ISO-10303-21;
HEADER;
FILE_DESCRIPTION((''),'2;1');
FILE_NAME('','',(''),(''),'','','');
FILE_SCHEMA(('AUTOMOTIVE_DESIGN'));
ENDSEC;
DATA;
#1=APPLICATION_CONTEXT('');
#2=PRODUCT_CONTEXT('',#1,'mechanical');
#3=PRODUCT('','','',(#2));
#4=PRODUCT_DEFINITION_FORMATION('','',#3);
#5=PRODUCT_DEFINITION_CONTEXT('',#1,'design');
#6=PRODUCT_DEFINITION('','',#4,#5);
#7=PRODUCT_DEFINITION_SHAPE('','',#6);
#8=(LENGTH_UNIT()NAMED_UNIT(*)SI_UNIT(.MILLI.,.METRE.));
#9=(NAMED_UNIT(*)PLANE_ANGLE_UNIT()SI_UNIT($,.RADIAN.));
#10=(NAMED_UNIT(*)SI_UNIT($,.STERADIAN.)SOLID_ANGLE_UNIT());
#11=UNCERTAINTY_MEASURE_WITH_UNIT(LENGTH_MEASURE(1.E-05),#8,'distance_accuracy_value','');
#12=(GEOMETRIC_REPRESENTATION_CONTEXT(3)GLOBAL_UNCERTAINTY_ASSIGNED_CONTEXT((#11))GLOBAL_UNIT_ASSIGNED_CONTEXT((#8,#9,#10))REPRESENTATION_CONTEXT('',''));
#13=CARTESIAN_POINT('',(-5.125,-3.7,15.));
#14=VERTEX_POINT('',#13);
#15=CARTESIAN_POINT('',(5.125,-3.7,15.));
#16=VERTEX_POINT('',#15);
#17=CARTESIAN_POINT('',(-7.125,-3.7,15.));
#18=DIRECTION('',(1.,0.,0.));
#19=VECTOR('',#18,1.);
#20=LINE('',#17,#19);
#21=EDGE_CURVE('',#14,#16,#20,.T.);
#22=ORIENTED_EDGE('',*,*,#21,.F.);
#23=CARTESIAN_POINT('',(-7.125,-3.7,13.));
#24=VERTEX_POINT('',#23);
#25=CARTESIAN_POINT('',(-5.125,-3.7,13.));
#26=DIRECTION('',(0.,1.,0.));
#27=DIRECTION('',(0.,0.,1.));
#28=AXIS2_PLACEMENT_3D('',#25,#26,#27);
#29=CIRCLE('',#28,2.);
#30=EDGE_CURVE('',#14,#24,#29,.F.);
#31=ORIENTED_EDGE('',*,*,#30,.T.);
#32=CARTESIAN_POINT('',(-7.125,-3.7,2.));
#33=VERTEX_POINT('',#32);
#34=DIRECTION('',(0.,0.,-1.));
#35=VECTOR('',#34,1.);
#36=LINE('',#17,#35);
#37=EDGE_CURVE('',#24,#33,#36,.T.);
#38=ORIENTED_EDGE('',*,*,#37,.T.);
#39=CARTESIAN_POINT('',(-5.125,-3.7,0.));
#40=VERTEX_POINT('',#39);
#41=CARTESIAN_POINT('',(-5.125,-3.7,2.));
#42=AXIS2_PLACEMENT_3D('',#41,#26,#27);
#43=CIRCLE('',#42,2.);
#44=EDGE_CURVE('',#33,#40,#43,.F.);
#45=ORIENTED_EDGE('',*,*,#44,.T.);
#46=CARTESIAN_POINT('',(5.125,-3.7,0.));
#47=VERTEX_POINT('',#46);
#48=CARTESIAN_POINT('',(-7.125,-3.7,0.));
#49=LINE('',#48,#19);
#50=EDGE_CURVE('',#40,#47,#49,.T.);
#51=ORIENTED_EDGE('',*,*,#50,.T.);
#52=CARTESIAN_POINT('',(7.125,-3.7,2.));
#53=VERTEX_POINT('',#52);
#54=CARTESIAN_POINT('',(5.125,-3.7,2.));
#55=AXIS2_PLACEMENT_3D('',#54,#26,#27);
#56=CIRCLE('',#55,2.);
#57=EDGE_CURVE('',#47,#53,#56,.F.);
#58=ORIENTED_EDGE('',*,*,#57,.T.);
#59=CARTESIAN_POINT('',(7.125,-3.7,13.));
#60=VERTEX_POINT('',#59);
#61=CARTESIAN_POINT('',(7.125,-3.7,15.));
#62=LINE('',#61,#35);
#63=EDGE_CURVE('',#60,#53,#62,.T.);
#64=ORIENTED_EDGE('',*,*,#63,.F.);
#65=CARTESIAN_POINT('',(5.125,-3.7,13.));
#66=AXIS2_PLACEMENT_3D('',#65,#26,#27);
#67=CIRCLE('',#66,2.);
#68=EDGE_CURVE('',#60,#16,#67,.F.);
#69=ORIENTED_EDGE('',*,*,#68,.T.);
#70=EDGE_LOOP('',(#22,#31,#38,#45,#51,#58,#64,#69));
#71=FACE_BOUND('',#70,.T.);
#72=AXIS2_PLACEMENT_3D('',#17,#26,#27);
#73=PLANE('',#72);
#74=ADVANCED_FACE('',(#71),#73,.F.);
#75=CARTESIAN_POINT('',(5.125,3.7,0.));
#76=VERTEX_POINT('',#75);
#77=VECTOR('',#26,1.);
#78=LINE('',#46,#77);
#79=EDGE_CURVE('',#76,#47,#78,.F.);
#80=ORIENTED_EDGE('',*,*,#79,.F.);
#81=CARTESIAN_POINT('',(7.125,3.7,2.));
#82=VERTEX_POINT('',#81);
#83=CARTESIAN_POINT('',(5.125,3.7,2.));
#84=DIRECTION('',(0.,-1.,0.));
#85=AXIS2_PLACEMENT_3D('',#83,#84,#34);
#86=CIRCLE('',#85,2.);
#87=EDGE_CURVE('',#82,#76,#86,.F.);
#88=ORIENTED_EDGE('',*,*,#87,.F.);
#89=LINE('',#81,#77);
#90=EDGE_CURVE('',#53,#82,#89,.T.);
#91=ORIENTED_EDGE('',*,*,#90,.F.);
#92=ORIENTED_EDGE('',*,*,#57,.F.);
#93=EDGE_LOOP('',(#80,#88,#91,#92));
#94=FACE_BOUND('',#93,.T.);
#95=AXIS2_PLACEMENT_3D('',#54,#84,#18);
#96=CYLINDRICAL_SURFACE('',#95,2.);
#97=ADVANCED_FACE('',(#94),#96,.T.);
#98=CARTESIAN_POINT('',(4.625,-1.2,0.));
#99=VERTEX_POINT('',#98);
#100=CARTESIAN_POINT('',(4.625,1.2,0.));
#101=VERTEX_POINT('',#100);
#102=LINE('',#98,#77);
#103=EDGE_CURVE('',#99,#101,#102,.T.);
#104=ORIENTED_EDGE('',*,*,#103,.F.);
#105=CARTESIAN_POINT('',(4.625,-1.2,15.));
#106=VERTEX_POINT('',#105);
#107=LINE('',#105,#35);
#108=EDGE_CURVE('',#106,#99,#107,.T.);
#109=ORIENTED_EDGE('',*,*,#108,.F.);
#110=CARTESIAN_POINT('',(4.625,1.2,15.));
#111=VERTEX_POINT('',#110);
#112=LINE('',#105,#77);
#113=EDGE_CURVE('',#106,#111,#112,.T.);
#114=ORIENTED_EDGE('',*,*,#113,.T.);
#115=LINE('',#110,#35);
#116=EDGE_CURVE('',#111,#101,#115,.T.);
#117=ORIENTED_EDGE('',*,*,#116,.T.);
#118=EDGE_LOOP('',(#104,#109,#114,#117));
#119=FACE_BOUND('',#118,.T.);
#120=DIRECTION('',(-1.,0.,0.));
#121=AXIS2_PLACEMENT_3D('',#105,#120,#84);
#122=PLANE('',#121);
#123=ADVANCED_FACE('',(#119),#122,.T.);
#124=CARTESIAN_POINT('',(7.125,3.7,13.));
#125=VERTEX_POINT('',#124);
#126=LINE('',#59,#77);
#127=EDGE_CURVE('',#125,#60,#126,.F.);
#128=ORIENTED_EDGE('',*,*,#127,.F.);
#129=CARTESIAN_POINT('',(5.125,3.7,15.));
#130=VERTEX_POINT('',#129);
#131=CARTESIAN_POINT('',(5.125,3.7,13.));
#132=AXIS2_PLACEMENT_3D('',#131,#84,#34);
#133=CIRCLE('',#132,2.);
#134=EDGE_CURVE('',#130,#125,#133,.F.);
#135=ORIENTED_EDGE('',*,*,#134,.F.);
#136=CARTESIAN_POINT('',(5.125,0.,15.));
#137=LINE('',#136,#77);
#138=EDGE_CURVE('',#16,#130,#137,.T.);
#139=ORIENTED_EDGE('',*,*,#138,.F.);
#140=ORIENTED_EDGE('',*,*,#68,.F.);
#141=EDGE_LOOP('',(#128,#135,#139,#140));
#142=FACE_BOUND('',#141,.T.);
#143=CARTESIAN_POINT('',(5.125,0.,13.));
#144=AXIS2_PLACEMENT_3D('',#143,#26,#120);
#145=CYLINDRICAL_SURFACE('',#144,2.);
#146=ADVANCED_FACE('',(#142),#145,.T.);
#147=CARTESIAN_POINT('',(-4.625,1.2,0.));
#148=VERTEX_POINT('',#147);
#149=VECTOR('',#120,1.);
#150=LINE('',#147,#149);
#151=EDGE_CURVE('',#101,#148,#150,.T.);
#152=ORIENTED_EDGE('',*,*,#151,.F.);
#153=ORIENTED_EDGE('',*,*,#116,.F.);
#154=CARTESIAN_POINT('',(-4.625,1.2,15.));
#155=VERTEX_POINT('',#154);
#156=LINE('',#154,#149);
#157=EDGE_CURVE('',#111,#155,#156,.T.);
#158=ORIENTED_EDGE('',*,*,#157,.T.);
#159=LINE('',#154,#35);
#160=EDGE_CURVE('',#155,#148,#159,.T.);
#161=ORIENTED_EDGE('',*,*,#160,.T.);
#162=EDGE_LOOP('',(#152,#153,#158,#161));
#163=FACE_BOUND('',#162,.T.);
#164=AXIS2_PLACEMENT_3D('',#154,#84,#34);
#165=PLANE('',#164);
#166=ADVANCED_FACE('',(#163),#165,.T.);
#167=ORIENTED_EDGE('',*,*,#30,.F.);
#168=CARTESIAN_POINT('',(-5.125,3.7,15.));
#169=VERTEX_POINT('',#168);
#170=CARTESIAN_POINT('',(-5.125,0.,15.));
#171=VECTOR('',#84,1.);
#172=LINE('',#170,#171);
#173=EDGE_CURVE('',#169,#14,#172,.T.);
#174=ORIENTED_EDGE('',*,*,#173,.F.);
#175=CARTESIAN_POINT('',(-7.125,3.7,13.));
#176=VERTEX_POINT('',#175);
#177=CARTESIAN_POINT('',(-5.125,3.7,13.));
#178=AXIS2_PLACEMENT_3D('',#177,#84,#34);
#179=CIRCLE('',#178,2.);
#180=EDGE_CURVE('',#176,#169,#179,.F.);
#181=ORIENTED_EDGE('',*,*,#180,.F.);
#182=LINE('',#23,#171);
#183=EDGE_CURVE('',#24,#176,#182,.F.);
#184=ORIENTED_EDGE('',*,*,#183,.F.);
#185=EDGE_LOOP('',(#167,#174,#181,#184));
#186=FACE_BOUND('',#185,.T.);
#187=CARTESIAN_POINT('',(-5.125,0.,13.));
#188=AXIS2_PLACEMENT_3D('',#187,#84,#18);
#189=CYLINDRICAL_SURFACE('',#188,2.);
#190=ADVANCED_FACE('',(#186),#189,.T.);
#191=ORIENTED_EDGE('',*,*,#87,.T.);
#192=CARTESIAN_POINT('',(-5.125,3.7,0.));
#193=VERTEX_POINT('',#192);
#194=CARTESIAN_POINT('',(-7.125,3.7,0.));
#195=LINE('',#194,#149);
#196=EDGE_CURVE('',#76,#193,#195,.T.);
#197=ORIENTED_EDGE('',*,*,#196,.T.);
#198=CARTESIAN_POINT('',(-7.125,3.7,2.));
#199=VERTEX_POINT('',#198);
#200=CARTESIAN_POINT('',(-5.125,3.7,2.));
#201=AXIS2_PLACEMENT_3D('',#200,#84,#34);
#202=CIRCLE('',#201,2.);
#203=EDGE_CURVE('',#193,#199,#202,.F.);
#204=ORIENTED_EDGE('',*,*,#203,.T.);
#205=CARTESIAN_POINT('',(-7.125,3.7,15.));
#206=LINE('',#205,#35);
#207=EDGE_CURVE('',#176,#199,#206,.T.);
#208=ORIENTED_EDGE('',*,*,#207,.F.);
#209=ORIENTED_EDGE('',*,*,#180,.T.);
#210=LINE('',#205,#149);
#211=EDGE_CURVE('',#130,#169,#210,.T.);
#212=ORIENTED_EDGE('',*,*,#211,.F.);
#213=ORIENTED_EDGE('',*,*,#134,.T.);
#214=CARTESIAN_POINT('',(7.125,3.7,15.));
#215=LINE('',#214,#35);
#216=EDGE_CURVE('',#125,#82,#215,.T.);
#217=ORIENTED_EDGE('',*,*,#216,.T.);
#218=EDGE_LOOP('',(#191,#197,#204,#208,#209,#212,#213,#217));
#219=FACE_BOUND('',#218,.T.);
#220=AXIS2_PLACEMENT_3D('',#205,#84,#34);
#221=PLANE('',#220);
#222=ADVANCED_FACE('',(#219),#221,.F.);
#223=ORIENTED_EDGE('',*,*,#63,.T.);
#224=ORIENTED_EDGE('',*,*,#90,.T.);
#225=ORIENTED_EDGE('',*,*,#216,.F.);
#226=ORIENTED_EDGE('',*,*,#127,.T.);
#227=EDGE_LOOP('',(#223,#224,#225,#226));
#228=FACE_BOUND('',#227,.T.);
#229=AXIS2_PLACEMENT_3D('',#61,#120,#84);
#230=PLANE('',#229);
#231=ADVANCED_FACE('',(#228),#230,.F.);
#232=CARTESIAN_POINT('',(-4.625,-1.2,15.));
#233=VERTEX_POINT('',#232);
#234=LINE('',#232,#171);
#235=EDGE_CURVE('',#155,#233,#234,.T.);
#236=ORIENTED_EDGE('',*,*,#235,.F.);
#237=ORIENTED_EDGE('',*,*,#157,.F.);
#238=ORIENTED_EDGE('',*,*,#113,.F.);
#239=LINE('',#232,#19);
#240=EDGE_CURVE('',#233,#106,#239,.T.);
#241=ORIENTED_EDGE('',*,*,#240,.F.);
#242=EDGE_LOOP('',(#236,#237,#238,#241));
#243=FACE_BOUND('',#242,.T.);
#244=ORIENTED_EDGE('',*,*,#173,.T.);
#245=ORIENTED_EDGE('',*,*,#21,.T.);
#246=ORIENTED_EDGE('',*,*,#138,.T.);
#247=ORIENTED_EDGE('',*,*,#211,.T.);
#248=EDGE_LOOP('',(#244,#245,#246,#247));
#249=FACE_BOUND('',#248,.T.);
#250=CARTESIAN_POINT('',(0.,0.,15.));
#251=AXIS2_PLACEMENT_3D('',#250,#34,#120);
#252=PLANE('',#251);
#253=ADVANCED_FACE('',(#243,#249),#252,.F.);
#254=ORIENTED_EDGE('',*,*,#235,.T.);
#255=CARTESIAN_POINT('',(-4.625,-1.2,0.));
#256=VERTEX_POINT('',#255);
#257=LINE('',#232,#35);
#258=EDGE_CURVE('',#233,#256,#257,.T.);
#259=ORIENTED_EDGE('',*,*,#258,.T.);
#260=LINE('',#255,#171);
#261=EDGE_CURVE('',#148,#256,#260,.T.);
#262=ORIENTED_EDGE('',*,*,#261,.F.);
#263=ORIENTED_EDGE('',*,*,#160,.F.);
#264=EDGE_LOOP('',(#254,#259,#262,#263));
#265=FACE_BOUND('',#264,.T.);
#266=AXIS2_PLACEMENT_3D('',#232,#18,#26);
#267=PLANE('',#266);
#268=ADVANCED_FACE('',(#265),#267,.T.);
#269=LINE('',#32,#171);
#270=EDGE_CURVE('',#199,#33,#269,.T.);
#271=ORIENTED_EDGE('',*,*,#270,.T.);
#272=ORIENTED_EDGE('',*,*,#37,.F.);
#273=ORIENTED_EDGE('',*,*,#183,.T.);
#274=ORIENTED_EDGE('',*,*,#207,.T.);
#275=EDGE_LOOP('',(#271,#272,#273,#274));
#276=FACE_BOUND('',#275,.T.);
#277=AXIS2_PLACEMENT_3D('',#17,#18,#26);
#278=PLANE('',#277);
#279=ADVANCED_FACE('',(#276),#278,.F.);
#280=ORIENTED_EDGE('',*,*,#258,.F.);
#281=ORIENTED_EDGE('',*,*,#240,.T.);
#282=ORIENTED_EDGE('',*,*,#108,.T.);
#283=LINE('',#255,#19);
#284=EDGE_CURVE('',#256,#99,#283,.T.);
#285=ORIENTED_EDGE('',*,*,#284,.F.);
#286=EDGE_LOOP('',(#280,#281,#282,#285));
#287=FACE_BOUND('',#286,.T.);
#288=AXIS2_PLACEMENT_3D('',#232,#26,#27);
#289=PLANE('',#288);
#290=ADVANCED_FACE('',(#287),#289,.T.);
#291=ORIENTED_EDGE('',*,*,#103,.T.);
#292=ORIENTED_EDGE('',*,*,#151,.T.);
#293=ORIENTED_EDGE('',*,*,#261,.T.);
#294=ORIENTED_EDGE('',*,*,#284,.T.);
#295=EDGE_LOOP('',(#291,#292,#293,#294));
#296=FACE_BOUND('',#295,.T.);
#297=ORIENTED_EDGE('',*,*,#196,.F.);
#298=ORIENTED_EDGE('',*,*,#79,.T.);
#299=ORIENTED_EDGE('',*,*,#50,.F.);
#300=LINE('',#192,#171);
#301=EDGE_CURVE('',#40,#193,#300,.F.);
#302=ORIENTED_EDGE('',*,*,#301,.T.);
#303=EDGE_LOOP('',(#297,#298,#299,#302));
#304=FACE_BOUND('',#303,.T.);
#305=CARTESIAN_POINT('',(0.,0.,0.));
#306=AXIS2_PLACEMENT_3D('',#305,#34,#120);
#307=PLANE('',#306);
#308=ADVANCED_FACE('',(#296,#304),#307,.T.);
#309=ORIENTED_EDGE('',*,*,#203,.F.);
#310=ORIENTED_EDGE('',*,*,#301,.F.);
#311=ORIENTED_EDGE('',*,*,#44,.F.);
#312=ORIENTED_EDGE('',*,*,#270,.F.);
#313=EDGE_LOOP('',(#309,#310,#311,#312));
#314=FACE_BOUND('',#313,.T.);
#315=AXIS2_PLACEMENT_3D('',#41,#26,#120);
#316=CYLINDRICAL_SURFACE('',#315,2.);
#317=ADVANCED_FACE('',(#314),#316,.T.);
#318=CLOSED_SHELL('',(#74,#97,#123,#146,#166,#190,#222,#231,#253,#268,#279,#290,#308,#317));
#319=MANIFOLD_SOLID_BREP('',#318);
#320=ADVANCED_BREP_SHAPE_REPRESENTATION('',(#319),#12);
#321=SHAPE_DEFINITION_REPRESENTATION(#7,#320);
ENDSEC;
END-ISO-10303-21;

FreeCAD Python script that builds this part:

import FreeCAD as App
import Part
import Sketcher
Q = App.Units.Quantity


def edges_at(feature, points):
    """Names of the edges that pass closest to the given points."""
    edges = feature.Shape.Edges
    near = lambda p: min(range(len(edges)), key=lambda i: edges[i].distToShape(Part.Vertex(*p))[0])
    return sorted({f"Edge{near(p) + 1}" for p in points})

doc = App.newDocument("Part")
body = doc.addObject("PartDesign::Body", "Body")

# Sketch on XY plane
sketch1 = doc.addObject("Sketcher::SketchObject", "Sketch")
body.addObject(sketch1)
sketch1.AttachmentSupport = (doc.XY_Plane, [""])
sketch1.MapMode = "FlatFace"
sketch1.addGeometry([
    Part.LineSegment(App.Vector(-7.1, 3.7, 0), App.Vector(-7.1, -3.7, 0)),  # 0
    Part.LineSegment(App.Vector(-7.1, -3.7, 0), App.Vector(7.1, -3.7, 0)),  # 1
    Part.LineSegment(App.Vector(7.1, -3.7, 0), App.Vector(7.1, 3.7, 0)),  # 2
    Part.LineSegment(App.Vector(7.1, 3.7, 0), App.Vector(-7.1, 3.7, 0)),  # 3
    Part.LineSegment(App.Vector(4.6, -1.2, 0), App.Vector(-4.6, -1.2, 0)),  # 4
    Part.LineSegment(App.Vector(-4.6, -1.2, 0), App.Vector(-4.6, 1.2, 0)),  # 5
    Part.LineSegment(App.Vector(-4.6, 1.2, 0), App.Vector(4.6, 1.2, 0)),  # 6
    Part.LineSegment(App.Vector(4.6, 1.2, 0), App.Vector(4.6, -1.2, 0)),  # 7
], False)
sketch1.addConstraint([
    Sketcher.Constraint("Coincident", 0, 2, 1, 1),
    Sketcher.Constraint("Coincident", 1, 2, 2, 1),
    Sketcher.Constraint("Coincident", 2, 2, 3, 1),
    Sketcher.Constraint("Coincident", 3, 2, 0, 1),
    Sketcher.Constraint("Coincident", 4, 2, 5, 1),
    Sketcher.Constraint("Coincident", 5, 2, 6, 1),
    Sketcher.Constraint("Coincident", 6, 2, 7, 1),
    Sketcher.Constraint("Coincident", 7, 2, 4, 1),
    Sketcher.Constraint("Vertical", 0),
    Sketcher.Constraint("Horizontal", 1),
    Sketcher.Constraint("Vertical", 2),
    Sketcher.Constraint("Horizontal", 3),
    Sketcher.Constraint("Horizontal", 4),
    Sketcher.Constraint("Vertical", 5),
    Sketcher.Constraint("Horizontal", 6),
    Sketcher.Constraint("Vertical", 7),
    Sketcher.Constraint("Symmetric", 0, 2, 2, 2, -1, 1),
    Sketcher.Constraint("Symmetric", 4, 2, 6, 2, -1, 1),
    Sketcher.Constraint("DistanceY", 0, 2, 0, 1, Q("7.4 mm")),
    Sketcher.Constraint("DistanceY", 5, 1, 5, 2, Q("2.4 mm")),
    Sketcher.Constraint("DistanceX", 1, 1, 1, 2, Q("14.25 mm")),
    Sketcher.Constraint("DistanceX", 4, 2, 4, 1, Q("9.25 mm")),
])
pad1 = doc.addObject("PartDesign::Pad", "Pad")
body.addObject(pad1)
pad1.Profile = sketch1
pad1.Length = 15
doc.recompute()

fillet = doc.addObject("PartDesign::Fillet", "Fillet")
body.addObject(fillet)
fillet.Base = (pad1, edges_at(pad1, [
    (-7.125, 0, 15),
    (7.125, 0, 15),
    (-7.125, 0, 0),
    (7.125, 0, 0),
]))
fillet.Radius = 2

doc.recompute()
